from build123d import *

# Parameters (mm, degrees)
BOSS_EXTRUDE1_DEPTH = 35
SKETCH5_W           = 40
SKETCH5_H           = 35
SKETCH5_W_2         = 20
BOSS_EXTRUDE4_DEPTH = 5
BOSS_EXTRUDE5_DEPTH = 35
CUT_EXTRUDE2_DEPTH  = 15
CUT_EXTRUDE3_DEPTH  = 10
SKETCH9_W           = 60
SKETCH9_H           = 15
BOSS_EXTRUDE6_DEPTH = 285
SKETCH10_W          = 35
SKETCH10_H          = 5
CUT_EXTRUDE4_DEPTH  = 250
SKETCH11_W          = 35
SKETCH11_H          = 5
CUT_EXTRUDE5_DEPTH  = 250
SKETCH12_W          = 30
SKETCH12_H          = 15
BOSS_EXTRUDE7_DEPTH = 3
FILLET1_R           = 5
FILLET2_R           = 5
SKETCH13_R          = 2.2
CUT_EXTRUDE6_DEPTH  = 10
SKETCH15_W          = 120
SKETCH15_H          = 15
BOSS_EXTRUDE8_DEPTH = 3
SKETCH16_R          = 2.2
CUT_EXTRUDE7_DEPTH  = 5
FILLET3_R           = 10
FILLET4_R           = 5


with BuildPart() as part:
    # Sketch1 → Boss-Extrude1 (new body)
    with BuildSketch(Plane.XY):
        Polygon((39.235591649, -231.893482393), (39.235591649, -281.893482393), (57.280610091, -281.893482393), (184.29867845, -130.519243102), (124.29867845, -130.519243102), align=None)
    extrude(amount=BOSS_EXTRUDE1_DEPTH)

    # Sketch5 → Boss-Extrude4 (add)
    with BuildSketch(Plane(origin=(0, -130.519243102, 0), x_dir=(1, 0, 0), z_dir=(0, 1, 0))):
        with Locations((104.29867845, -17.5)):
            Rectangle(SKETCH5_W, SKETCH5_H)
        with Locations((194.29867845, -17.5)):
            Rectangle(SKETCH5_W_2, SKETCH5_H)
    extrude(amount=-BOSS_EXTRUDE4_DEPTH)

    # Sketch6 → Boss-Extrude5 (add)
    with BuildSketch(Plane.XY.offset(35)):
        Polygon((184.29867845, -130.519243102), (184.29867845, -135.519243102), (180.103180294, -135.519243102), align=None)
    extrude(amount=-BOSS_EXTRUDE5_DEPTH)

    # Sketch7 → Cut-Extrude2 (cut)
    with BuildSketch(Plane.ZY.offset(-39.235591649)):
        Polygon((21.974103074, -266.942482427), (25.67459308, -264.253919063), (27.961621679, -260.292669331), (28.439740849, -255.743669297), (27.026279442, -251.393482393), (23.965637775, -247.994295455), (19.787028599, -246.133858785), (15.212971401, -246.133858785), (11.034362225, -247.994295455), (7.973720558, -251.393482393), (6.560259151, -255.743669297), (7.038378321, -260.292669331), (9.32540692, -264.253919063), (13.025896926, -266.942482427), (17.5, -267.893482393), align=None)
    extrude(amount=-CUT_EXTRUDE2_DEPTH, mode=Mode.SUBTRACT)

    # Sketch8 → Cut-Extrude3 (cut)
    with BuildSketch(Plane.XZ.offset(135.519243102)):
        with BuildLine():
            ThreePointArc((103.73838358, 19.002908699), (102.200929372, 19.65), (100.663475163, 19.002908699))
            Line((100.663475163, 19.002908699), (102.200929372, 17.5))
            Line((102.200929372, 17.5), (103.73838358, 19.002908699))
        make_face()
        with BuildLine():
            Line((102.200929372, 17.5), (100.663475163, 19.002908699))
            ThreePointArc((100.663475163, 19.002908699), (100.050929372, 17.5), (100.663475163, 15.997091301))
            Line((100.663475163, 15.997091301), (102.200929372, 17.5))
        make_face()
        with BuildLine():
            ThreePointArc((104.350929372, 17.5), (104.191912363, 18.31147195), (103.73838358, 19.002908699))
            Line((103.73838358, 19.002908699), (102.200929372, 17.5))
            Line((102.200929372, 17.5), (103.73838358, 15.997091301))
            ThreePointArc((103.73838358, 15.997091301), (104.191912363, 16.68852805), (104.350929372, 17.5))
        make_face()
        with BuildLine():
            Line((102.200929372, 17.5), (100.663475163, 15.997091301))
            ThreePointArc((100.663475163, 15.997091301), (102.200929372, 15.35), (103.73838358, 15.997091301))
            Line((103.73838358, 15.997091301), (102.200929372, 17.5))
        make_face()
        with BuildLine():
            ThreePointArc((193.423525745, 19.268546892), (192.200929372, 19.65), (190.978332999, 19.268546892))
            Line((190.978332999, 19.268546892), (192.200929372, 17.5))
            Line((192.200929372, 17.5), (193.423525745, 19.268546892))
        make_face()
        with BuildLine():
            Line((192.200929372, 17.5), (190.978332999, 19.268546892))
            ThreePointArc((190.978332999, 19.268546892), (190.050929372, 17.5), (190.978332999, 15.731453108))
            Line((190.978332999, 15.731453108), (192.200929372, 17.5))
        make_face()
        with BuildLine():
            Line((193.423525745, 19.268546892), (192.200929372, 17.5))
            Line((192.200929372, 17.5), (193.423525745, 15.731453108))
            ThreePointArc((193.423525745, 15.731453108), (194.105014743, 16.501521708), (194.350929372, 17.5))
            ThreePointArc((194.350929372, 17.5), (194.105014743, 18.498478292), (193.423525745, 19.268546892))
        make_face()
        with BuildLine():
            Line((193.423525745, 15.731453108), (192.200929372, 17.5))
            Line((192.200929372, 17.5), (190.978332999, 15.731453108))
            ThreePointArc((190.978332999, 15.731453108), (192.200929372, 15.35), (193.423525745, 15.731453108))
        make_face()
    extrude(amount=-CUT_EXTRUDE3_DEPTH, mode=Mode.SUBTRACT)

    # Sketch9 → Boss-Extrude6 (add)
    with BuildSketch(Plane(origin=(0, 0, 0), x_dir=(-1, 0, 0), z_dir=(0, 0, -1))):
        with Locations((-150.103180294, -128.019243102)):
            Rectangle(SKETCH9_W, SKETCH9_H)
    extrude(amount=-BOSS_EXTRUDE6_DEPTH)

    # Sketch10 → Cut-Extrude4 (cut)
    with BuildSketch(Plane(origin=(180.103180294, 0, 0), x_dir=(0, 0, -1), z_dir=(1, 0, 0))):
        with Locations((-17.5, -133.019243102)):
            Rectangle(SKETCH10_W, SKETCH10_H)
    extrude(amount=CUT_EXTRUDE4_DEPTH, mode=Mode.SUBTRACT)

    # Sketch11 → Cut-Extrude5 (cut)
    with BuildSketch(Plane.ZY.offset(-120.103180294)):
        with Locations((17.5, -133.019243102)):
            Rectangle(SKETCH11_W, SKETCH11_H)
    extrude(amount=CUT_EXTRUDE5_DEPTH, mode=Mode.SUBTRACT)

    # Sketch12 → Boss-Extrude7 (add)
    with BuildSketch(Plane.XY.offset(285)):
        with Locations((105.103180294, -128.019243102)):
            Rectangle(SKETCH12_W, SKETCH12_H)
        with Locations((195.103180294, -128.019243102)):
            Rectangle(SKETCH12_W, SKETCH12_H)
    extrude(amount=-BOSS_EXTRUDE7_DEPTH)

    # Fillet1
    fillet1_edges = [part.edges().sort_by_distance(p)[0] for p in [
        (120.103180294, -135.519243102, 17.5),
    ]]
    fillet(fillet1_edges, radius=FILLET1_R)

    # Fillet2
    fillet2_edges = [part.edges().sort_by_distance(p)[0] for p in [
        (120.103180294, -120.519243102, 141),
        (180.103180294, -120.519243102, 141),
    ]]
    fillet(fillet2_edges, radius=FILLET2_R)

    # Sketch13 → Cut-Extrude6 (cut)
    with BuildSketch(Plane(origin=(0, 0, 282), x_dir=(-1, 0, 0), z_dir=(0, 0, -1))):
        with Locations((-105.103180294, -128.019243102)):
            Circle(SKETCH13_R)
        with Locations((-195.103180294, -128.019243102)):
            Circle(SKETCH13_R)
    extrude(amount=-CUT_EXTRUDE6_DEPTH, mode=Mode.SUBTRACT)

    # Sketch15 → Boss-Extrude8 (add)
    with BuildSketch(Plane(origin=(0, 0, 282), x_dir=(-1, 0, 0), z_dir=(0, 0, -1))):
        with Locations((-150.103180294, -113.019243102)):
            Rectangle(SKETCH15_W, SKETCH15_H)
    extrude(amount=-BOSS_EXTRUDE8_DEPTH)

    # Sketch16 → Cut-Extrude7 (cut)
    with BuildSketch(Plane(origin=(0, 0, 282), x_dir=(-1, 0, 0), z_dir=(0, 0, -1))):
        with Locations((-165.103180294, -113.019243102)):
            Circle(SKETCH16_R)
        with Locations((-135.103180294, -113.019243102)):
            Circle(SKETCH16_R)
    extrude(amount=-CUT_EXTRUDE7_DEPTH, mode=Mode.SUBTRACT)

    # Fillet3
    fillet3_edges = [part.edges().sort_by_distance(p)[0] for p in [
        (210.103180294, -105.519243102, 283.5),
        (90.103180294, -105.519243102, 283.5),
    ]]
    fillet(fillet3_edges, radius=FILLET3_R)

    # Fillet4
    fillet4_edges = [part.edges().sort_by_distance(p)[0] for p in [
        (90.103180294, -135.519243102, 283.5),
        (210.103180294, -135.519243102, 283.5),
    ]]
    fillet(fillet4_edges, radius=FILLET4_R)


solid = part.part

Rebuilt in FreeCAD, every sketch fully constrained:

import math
import FreeCAD as App
import Part
import Sketcher
Q = App.Units.Quantity


def edges_at(feature, points):
    """Names of the edges that pass closest to the given points."""
    edges = feature.Shape.Edges
    near = lambda p: min(range(len(edges)), key=lambda i: edges[i].distToShape(Part.Vertex(*p))[0])
    return sorted({f"Edge{near(p) + 1}" for p in points})


def add_polygon(sketch, points):
    """Adds a closed chain of lines whose ends are joined by coincident constraints."""
    first, n = sketch.GeometryCount, len(points)
    for a, b in zip(points, points[1:] + points[:1]):
        sketch.addGeometry(Part.LineSegment(App.Vector(*a, 0), App.Vector(*b, 0)), False)
    for i in range(n):
        sketch.addConstraint(Sketcher.Constraint("Coincident", first + i, 2, first + (i + 1) % n, 1))

doc = App.newDocument("Part")
body = doc.addObject("PartDesign::Body", "Body")
body.AllowCompound = True

sketch1 = body.newObject("Sketcher::SketchObject", "Sketch")
sketch1.AttachmentSupport = (doc.getObject("XY_Plane"), [""])
sketch1.MapMode = "FlatFace"
add_polygon(sketch1, [(39, -232), (39, -282), (57, -282), (184, -131), (124, -131)])
sketch1.addConstraint([
    Sketcher.Constraint("Vertical", 0),
    Sketcher.Constraint("Horizontal", 1),
    Sketcher.Constraint("Horizontal", 3),
    Sketcher.Constraint("Parallel", 2, 4),
    Sketcher.Constraint("DistanceX", 3, 2, 3, 1, Q("60 mm")),
    Sketcher.Constraint("DistanceY", 0, 2, 0, 1, Q("50 mm")),
    Sketcher.Constraint("Angle", 2, Q("50 deg")),
    Sketcher.Constraint("Distance", 4, Q("132.334671 mm")),
    Sketcher.Constraint("DistanceX", -1, 1, 0, 2, Q("39.235592 mm")),
    Sketcher.Constraint("DistanceY", 0, 2, -1, 1, Q("281.893482 mm")),
])
pad1 = body.newObject("PartDesign::Pad", "Pad")
pad1.Profile = sketch1
pad1.Length = 35

sketch2 = body.newObject("Sketcher::SketchObject", "Sketch001")
sketch2.AttachmentSupport = (doc.getObject("XZ_Plane"), [""])
sketch2.MapMode = "FlatFace"
sketch2.AttachmentOffset = App.Placement(App.Vector(0, 0, 130.519243), App.Rotation())
add_polygon(sketch2, [(84, 0), (84, 35), (124, 35), (124, 0)])
add_polygon(sketch2, [(184, 0), (184, 35), (204, 35), (204, 0)])
sketch2.addConstraint([
    Sketcher.Constraint("Vertical", 0),
    Sketcher.Constraint("Horizontal", 1),
    Sketcher.Constraint("Vertical", 2),
    Sketcher.Constraint("Horizontal", 3),
    Sketcher.Constraint("Vertical", 4),
    Sketcher.Constraint("Horizontal", 5),
    Sketcher.Constraint("Vertical", 6),
    Sketcher.Constraint("Horizontal", 7),
    Sketcher.Constraint("PointOnObject", 2, 2, -1),
    Sketcher.Constraint("PointOnObject", 6, 2, -1),
    Sketcher.Constraint("Horizontal", 1, 2, 4, 2),
    Sketcher.Constraint("DistanceX", 1, 1, 1, 2, Q("40 mm")),
    Sketcher.Constraint("DistanceX", 5, 1, 5, 2, Q("20 mm")),
    Sketcher.Constraint("DistanceY", 0, 1, 0, 2, Q("35 mm")),
    Sketcher.Constraint("DistanceX", 1, 2, 4, 2, Q("60 mm")),
    Sketcher.Constraint("DistanceX", -1, 1, 0, 2, Q("84.298678 mm")),
])
pad2 = body.newObject("PartDesign::Pad", "Pad001")
pad2.Profile = sketch2
pad2.Length = 5

sketch3 = body.newObject("Sketcher::SketchObject", "Sketch002")
sketch3.AttachmentSupport = (doc.getObject("XY_Plane"), [""])
sketch3.MapMode = "FlatFace"
sketch3.AttachmentOffset = App.Placement(App.Vector(0, 0, 35), App.Rotation())
add_polygon(sketch3, [(184.3, -135.5), (184.3, -130.5), (180.1, -135.5)])
sketch3.addConstraint([
    Sketcher.Constraint("Vertical", 0),
    Sketcher.Constraint("Horizontal", 2),
    Sketcher.Constraint("DistanceY", 0, 1, 0, 2, Q("5 mm")),
    Sketcher.Constraint("Angle", 1, Q("-130 deg")),
    Sketcher.Constraint("DistanceX", -1, 1, 0, 2, Q("184.298678 mm")),
    Sketcher.Constraint("DistanceY", 0, 2, -1, 1, Q("130.519243 mm")),
])
pad3 = body.newObject("PartDesign::Pad", "Pad002")
pad3.Profile = sketch3
pad3.Length = 35
pad3.Reversed = True

sketch4 = body.newObject("Sketcher::SketchObject", "Sketch003")
sketch4.AttachmentSupport = (doc.getObject("YZ_Plane"), [""])
sketch4.MapMode = "FlatFace"
sketch4.AttachmentOffset = App.Placement(App.Vector(0, 0, 39.235592), App.Rotation())
add_polygon(sketch4, [(-266.9, 22), (-264.3, 25.7), (-260.3, 28), (-255.7, 28.4), (-251.4, 27), (-248, 24), (-246.1, 19.8), (-246.1, 15.2), (-248, 11), (-251.4, 8), (-255.7, 6.6), (-260.3, 7), (-264.3, 9.3), (-266.9, 13), (-267.9, 17.5)])
sketch4.addConstraint([
    Sketcher.Constraint("Vertical", 6),
    Sketcher.Constraint("Vertical", 4, 2, 7, 2),
    Sketcher.Constraint("Vertical", 3, 2, 8, 2),
    Sketcher.Constraint("Vertical", 2, 2, 9, 2),
    Sketcher.Constraint("Vertical", 1, 2, 10, 2),
    Sketcher.Constraint("Vertical", 0, 2, 11, 2),
    Sketcher.Constraint("Vertical", 12, 2, 14, 2),
    Sketcher.Constraint("Equal", 0, 1),
    Sketcher.Constraint("Equal", 1, 2),
    Sketcher.Constraint("Equal", 2, 3),
    Sketcher.Constraint("Equal", 3, 4),
    Sketcher.Constraint("Equal", 4, 5),
    Sketcher.Constraint("Equal", 5, 7),
    Sketcher.Constraint("Equal", 7, 8),
    Sketcher.Constraint("Equal", 8, 9),
    Sketcher.Constraint("Equal", 9, 10),
    Sketcher.Constraint("Equal", 10, 11),
    Sketcher.Constraint("Equal", 11, 12),
    Sketcher.Constraint("Equal", 12, 13),
    Sketcher.Constraint("Equal", 13, 14),
    Sketcher.Constraint("Angle", 0, Q("54 deg")),
    Sketcher.Constraint("Angle", 1, Q("30 deg")),
    Sketcher.Constraint("Angle", 2, Q("6 deg")),
    Sketcher.Constraint("Angle", 3, Q("-18 deg")),
    Sketcher.Constraint("Angle", 4, Q("-42 deg")),
    Sketcher.Constraint("Angle", 5, Q("-66 deg")),
    Sketcher.Constraint("Angle", 13, Q("102 deg")),
    Sketcher.Constraint("DistanceY", -1, 1, 13, 2, Q("17.5 mm")),
    Sketcher.Constraint("DistanceX", 1, 2, 2, 2, Q("4.549 mm")),
    Sketcher.Constraint("DistanceX", 0, 2, -1, 1, Q("264.253919 mm")),
])
pocket1 = body.newObject("PartDesign::Pocket", "Pocket")
pocket1.Profile = sketch4
pocket1.Length = 15
pocket1.Reversed = True

sketch5 = body.newObject("Sketcher::SketchObject", "Sketch004")
sketch5.AttachmentSupport = (doc.getObject("XZ_Plane"), [""])
sketch5.MapMode = "FlatFace"
sketch5.AttachmentOffset = App.Placement(App.Vector(0, 0, 135.519243), App.Rotation())
sketch5.addGeometry([
    Part.ArcOfCircle(Part.Circle(App.Vector(102.2, 17.5, 0), App.Vector(0, 0, 1), 2.2), math.radians(-136), math.radians(-44)),
    Part.ArcOfCircle(Part.Circle(App.Vector(102.2, 17.5, 0), App.Vector(0, 0, 1), 2.2), math.radians(-44), math.radians(0)),
    Part.ArcOfCircle(Part.Circle(App.Vector(102.2, 17.5, 0), App.Vector(0, 0, 1), 2.2), math.radians(0), math.radians(44)),
    Part.ArcOfCircle(Part.Circle(App.Vector(102.2, 17.5, 0), App.Vector(0, 0, 1), 2.2), math.radians(44), math.radians(136)),
    Part.ArcOfCircle(Part.Circle(App.Vector(102.2, 17.5, 0), App.Vector(0, 0, 1), 2.2), math.radians(136), math.radians(224)),
    Part.ArcOfCircle(Part.Circle(App.Vector(192.2, 17.5, 0), App.Vector(0, 0, 1), 2.2), math.radians(-125), math.radians(-55)),
    Part.ArcOfCircle(Part.Circle(App.Vector(192.2, 17.5, 0), App.Vector(0, 0, 1), 2.2), math.radians(-55), math.radians(0)),
    Part.ArcOfCircle(Part.Circle(App.Vector(192.2, 17.5, 0), App.Vector(0, 0, 1), 2.2), math.radians(0), math.radians(55)),
    Part.ArcOfCircle(Part.Circle(App.Vector(192.2, 17.5, 0), App.Vector(0, 0, 1), 2.2), math.radians(55), math.radians(125)),
    Part.ArcOfCircle(Part.Circle(App.Vector(192.2, 17.5, 0), App.Vector(0, 0, 1), 2.1), math.radians(125), math.radians(235)),
], False)
sketch5.addConstraint([
    Sketcher.Constraint("Tangent", 0, 2, 1, 1),
    Sketcher.Constraint("Tangent", 1, 2, 2, 1),
    Sketcher.Constraint("Tangent", 2, 2, 3, 1),
    Sketcher.Constraint("Tangent", 3, 2, 4, 1),
    Sketcher.Constraint("Tangent", 4, 2, 0, 1),
    Sketcher.Constraint("Tangent", 5, 2, 6, 1),
    Sketcher.Constraint("Tangent", 6, 2, 7, 1),
    Sketcher.Constraint("Tangent", 7, 2, 8, 1),
    Sketcher.Constraint("Tangent", 8, 2, 9, 1),
    Sketcher.Constraint("Tangent", 9, 2, 5, 1),
    Sketcher.Constraint("Coincident", 2, 3, 0, 3),
    Sketcher.Constraint("Coincident", 7, 3, 5, 3),
    Sketcher.Constraint("Equal", 4, 5),
    Sketcher.Constraint("Horizontal", 4, 3, 5, 3),
    Sketcher.Constraint("Horizontal", 9, 3, 1, 2),
    Sketcher.Constraint("Horizontal", 2, 2, 3, 2),
    Sketcher.Constraint("Horizontal", 0, 2, 4, 2),
    Sketcher.Constraint("Horizontal", 1, 2, 6, 2),
    Sketcher.Constraint("Horizontal", 7, 2, 8, 2),
    Sketcher.Constraint("Horizontal", 5, 2, 9, 2),
    Sketcher.Constraint("Vertical", 0, 2, 2, 2),
    Sketcher.Constraint("Vertical", 5, 2, 7, 2),
    Sketcher.Constraint("Radius", 0, Q("2.15 mm")),
    Sketcher.Constraint("DistanceX", 4, 3, 5, 3, Q("90 mm")),
    Sketcher.Constraint("DistanceY", -1, 1, 0, 3, Q("17.5 mm")),
    Sketcher.Constraint("DistanceX", -1, 1, 0, 3, Q("102.200929 mm")),
    Sketcher.Constraint("DistanceY", -1, 1, 0, 2, Q("15.997091 mm")),
    Sketcher.Constraint("DistanceX", -1, 1, 5, 2, Q("193.423526 mm")),
])
pocket2 = body.newObject("PartDesign::Pocket", "Pocket001")
pocket2.Profile = sketch5
pocket2.Length = 10

sketch6 = body.newObject("Sketcher::SketchObject", "Sketch005")
sketch6.AttachmentSupport = (doc.getObject("XY_Plane"), [""])
sketch6.MapMode = "FlatFace"
add_polygon(sketch6, [(180, -121), (180, -136), (120, -136), (120, -121)])
sketch6.addConstraint([
    Sketcher.Constraint("Vertical", 0),
    Sketcher.Constraint("Horizontal", 1),
    Sketcher.Constraint("Vertical", 2),
    Sketcher.Constraint("Horizontal", 3),
    Sketcher.Constraint("DistanceX", 1, 2, 1, 1, Q("60 mm")),
    Sketcher.Constraint("DistanceY", 0, 2, 0, 1, Q("15 mm")),
    Sketcher.Constraint("DistanceX", -1, 1, 0, 2, Q("180.10318 mm")),
    Sketcher.Constraint("DistanceY", 0, 2, -1, 1, Q("135.519243 mm")),
])
pad4 = body.newObject("PartDesign::Pad", "Pad003")
pad4.Profile = sketch6
pad4.Length = 285

sketch7 = body.newObject("Sketcher::SketchObject", "Sketch006")
sketch7.AttachmentSupport = (doc.getObject("YZ_Plane"), [""])
sketch7.MapMode = "FlatFace"
sketch7.AttachmentOffset = App.Placement(App.Vector(0, 0, 180.10318), App.Rotation())
add_polygon(sketch7, [(-131, 35), (-136, 35), (-136, 0), (-131, 0)])
sketch7.addConstraint([
    Sketcher.Constraint("Horizontal", 0),
    Sketcher.Constraint("Vertical", 1),
    Sketcher.Constraint("Horizontal", 2),
    Sketcher.Constraint("Vertical", 3),
    Sketcher.Constraint("PointOnObject", 1, 2, -1),
    Sketcher.Constraint("DistanceX", 0, 2, 0, 1, Q("5 mm")),
    Sketcher.Constraint("DistanceY", 1, 2, 1, 1, Q("35 mm")),
    Sketcher.Constraint("DistanceX", 0, 2, -1, 1, Q("135.519243 mm")),
])
pocket3 = body.newObject("PartDesign::Pocket", "Pocket002")
pocket3.Profile = sketch7
pocket3.Length = 250
pocket3.Reversed = True

sketch8 = body.newObject("Sketcher::SketchObject", "Sketch007")
sketch8.AttachmentSupport = (doc.getObject("YZ_Plane"), [""])
sketch8.MapMode = "FlatFace"
sketch8.AttachmentOffset = App.Placement(App.Vector(0, 0, 120.10318), App.Rotation())
add_polygon(sketch8, [(-131, 0), (-136, 0), (-136, 35), (-131, 35)])
sketch8.addConstraint([
    Sketcher.Constraint("Horizontal", 0),
    Sketcher.Constraint("Vertical", 1),
    Sketcher.Constraint("Horizontal", 2),
    Sketcher.Constraint("Vertical", 3),
    Sketcher.Constraint("PointOnObject", 0, 2, -1),
    Sketcher.Constraint("DistanceX", 0, 2, 0, 1, Q("5 mm")),
    Sketcher.Constraint("DistanceY", 1, 1, 1, 2, Q("35 mm")),
    Sketcher.Constraint("DistanceX", 0, 2, -1, 1, Q("135.519243 mm")),
])
pocket4 = body.newObject("PartDesign::Pocket", "Pocket003")
pocket4.Profile = sketch8
pocket4.Length = 250

sketch9 = body.newObject("Sketcher::SketchObject", "Sketch008")
sketch9.AttachmentSupport = (doc.getObject("XY_Plane"), [""])
sketch9.MapMode = "FlatFace"
sketch9.AttachmentOffset = App.Placement(App.Vector(0, 0, 285), App.Rotation())
add_polygon(sketch9, [(90, -121), (90, -136), (120, -136), (120, -121)])
add_polygon(sketch9, [(180, -121), (180, -136), (210, -136), (210, -121)])
sketch9.addConstraint([
    Sketcher.Constraint("Vertical", 0),
    Sketcher.Constraint("Horizontal", 1),
    Sketcher.Constraint("Vertical", 2),
    Sketcher.Constraint("Horizontal", 3),
    Sketcher.Constraint("Vertical", 4),
    Sketcher.Constraint("Horizontal", 5),
    Sketcher.Constraint("Vertical", 6),
    Sketcher.Constraint("Horizontal", 7),
    Sketcher.Constraint("Horizontal", 1, 2, 4, 2),
    Sketcher.Constraint("Horizontal", 3, 2, 6, 2),
    Sketcher.Constraint("Equal", 3, 5),
    Sketcher.Constraint("DistanceX", 1, 1, 1, 2, Q("30 mm")),
    Sketcher.Constraint("DistanceY", 0, 2, 0, 1, Q("15 mm")),
    Sketcher.Constraint("DistanceX", 1, 2, 4, 2, Q("60 mm")),
    Sketcher.Constraint("DistanceX", -1, 1, 0, 2, Q("90.10318 mm")),
    Sketcher.Constraint("DistanceY", 0, 2, -1, 1, Q("135.519243 mm")),
])
pad5 = body.newObject("PartDesign::Pad", "Pad004")
pad5.Profile = sketch9
pad5.Length = 3
pad5.Reversed = True
doc.recompute()

fillet = body.newObject("PartDesign::Fillet", "Fillet")
fillet.Base = (pad5, edges_at(pad5, [(120.103, -135.519, 17.5)]))
fillet.Radius = 5
doc.recompute()

fillet2 = body.newObject("PartDesign::Fillet", "Fillet001")
fillet2.Base = (fillet, edges_at(fillet, [(120.103, -120.519, 141), (180.103, -120.519, 141)]))
fillet2.Radius = 5

sketch10 = body.newObject("Sketcher::SketchObject", "Sketch009")
sketch10.AttachmentSupport = (doc.getObject("XY_Plane"), [""])
sketch10.MapMode = "FlatFace"
sketch10.AttachmentOffset = App.Placement(App.Vector(0, 0, 282), App.Rotation())
sketch10.addGeometry([
    Part.Circle(App.Vector(105.1, -128, 0), App.Vector(0, 0, 1), 2.2),
    Part.Circle(App.Vector(195.1, -128, 0), App.Vector(0, 0, 1), 2.2),
], False)
sketch10.addConstraint([
    Sketcher.Constraint("Equal", 0, 1),
    Sketcher.Constraint("Horizontal", 0, 3, 1, 3),
    Sketcher.Constraint("Diameter", 0, Q("4.4 mm")),
    Sketcher.Constraint("DistanceX", 0, 3, 1, 3, Q("90 mm")),
    Sketcher.Constraint("DistanceX", -1, 1, 0, 3, Q("105.10318 mm")),
    Sketcher.Constraint("DistanceY", 0, 3, -1, 1, Q("128.019243 mm")),
])
pocket5 = body.newObject("PartDesign::Pocket", "Pocket004")
pocket5.Profile = sketch10
pocket5.Length = 10
pocket5.Reversed = True

sketch11 = body.newObject("Sketcher::SketchObject", "Sketch010")
sketch11.AttachmentSupport = (doc.getObject("XY_Plane"), [""])
sketch11.MapMode = "FlatFace"
sketch11.AttachmentOffset = App.Placement(App.Vector(0, 0, 282), App.Rotation())
add_polygon(sketch11, [(210, -106), (210, -121), (90, -121), (90, -106)])
sketch11.addConstraint([
    Sketcher.Constraint("Vertical", 0),
    Sketcher.Constraint("Horizontal", 1),
    Sketcher.Constraint("Vertical", 2),
    Sketcher.Constraint("Horizontal", 3),
    Sketcher.Constraint("DistanceX", 1, 2, 1, 1, Q("120 mm")),
    Sketcher.Constraint("DistanceY", 0, 2, 0, 1, Q("15 mm")),
    Sketcher.Constraint("DistanceX", -1, 1, 0, 2, Q("210.10318 mm")),
    Sketcher.Constraint("DistanceY", 0, 2, -1, 1, Q("120.519243 mm")),
])
pad6 = body.newObject("PartDesign::Pad", "Pad005")
pad6.Profile = sketch11
pad6.Length = 3

sketch12 = body.newObject("Sketcher::SketchObject", "Sketch011")
sketch12.AttachmentSupport = (doc.getObject("XY_Plane"), [""])
sketch12.MapMode = "FlatFace"
sketch12.AttachmentOffset = App.Placement(App.Vector(0, 0, 282), App.Rotation())
sketch12.addGeometry([
    Part.Circle(App.Vector(165.1, -113, 0), App.Vector(0, 0, 1), 2.2),
    Part.Circle(App.Vector(135.1, -113, 0), App.Vector(0, 0, 1), 2.2),
], False)
sketch12.addConstraint([
    Sketcher.Constraint("Equal", 0, 1),
    Sketcher.Constraint("Horizontal", 0, 3, 1, 3),
    Sketcher.Constraint("Diameter", 0, Q("4.4 mm")),
    Sketcher.Constraint("DistanceX", 1, 3, 0, 3, Q("30 mm")),
    Sketcher.Constraint("DistanceX", -1, 1, 0, 3, Q("165.10318 mm")),
    Sketcher.Constraint("DistanceY", 0, 3, -1, 1, Q("113.019243 mm")),
])
pocket6 = body.newObject("PartDesign::Pocket", "Pocket005")
pocket6.Profile = sketch12
pocket6.Length = 5
pocket6.Reversed = True
doc.recompute()

fillet3 = body.newObject("PartDesign::Fillet", "Fillet002")
fillet3.Base = (pocket6, edges_at(pocket6, [(210.103, -105.519, 283.5), (90.103, -105.519, 283.5)]))
fillet3.Radius = 10
doc.recompute()

fillet4 = body.newObject("PartDesign::Fillet", "Fillet003")
fillet4.Base = (fillet3, edges_at(fillet3, [(90.103, -135.519, 283.5), (210.103, -135.519, 283.5)]))
fillet4.Radius = 5

doc.recompute()
